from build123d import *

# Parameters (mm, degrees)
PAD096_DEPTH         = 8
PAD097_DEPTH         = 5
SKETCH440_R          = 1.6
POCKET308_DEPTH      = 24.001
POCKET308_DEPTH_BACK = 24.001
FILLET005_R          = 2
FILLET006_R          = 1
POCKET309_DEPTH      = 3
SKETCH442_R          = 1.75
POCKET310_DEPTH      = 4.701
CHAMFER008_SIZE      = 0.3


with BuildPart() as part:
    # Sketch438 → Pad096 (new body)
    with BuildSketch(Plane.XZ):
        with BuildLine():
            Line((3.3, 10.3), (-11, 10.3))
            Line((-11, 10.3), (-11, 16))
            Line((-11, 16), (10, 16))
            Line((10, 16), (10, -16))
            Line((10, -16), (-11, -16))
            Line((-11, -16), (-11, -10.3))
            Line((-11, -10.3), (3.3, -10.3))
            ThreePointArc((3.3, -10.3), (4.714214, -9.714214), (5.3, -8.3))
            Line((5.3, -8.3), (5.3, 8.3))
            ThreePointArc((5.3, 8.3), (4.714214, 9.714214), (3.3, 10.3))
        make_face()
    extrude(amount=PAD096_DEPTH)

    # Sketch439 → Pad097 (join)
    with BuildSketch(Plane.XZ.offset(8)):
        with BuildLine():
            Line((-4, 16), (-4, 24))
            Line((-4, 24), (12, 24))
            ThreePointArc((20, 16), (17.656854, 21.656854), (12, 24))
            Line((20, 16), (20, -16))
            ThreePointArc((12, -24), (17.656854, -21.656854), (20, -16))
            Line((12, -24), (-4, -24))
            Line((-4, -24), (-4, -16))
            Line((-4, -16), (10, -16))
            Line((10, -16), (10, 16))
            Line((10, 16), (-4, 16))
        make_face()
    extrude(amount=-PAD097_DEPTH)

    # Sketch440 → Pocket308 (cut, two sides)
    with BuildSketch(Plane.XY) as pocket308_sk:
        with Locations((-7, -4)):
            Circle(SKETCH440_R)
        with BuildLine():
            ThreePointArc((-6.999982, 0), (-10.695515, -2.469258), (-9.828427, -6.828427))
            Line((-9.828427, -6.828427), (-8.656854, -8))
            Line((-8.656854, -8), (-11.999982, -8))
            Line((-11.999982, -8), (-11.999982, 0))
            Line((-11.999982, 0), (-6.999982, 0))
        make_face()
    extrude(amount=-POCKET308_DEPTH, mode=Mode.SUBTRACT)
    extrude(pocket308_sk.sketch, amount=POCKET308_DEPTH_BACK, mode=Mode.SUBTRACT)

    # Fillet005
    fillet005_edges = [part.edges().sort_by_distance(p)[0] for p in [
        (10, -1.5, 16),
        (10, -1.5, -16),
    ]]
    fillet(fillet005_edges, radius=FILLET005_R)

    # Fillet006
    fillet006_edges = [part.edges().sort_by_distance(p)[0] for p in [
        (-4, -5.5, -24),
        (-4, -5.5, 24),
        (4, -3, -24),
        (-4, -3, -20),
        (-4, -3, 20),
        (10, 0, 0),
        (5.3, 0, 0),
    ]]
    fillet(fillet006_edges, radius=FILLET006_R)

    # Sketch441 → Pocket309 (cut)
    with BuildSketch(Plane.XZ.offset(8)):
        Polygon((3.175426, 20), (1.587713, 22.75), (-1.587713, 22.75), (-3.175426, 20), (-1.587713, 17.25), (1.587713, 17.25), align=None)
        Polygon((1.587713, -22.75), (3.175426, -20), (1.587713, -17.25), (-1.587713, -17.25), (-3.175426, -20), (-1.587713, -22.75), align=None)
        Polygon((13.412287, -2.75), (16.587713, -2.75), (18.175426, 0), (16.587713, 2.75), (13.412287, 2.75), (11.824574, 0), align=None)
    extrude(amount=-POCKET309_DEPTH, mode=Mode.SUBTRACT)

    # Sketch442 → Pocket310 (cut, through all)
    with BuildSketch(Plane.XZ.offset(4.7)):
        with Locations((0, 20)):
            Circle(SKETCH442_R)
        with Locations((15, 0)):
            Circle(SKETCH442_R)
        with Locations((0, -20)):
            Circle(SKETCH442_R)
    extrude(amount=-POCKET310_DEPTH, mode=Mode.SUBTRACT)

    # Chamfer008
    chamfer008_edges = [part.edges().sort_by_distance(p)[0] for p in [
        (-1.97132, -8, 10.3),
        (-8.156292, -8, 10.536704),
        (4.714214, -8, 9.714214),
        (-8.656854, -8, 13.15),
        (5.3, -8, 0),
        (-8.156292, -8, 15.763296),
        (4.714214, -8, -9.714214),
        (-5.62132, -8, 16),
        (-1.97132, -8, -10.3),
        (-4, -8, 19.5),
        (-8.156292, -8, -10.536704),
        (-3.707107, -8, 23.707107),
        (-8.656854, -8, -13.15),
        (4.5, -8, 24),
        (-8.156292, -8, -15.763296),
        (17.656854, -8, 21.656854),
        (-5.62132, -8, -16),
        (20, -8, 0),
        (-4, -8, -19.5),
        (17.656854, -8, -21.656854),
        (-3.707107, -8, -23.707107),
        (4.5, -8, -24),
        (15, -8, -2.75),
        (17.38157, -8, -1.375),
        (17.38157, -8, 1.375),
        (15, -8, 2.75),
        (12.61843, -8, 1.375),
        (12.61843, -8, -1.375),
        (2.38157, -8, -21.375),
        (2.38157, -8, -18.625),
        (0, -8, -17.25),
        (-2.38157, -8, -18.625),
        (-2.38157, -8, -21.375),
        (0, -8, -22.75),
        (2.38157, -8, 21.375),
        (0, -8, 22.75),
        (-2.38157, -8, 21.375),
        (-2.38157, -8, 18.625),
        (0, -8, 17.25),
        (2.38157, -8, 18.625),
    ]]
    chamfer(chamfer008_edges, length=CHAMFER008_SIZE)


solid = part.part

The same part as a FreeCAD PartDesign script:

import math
import FreeCAD as App
import Part
import Sketcher
from FreeCAD import Vector
Q = App.Units.Quantity


def edges_at(feature, points):
    """Names of the edges that pass closest to the given points."""
    edges = feature.Shape.Edges
    near = lambda p: min(range(len(edges)), key=lambda i: edges[i].distToShape(Part.Vertex(*p))[0])
    return sorted({f"Edge{near(p) + 1}" for p in points})


def add_polygon(sketch, points):
    """Adds a closed chain of lines whose ends are joined by coincident constraints."""
    first, n = sketch.GeometryCount, len(points)
    for a, b in zip(points, points[1:] + points[:1]):
        sketch.addGeometry(Part.LineSegment(App.Vector(*a, 0), App.Vector(*b, 0)), False)
    for i in range(n):
        sketch.addConstraint(Sketcher.Constraint("Coincident", first + i, 2, first + (i + 1) % n, 1))

doc = App.newDocument("Part")
body = doc.addObject("PartDesign::Body", "Body")

sketch1 = body.newObject("Sketcher::SketchObject", "Sketch")
sketch1.AttachmentSupport = (doc.getObject("XZ_Plane"), [""])
sketch1.MapMode = "FlatFace"
sketch1.addGeometry([
    Part.LineSegment(Vector(-11, 10.3, 0), Vector(3.3, 10.3, 0)),
    Part.ArcOfCircle(Part.Circle(Vector(3.3, 8.3, 0), Vector(0, 0, 1), 2), math.radians(0), math.radians(90)),
    Part.LineSegment(Vector(5.3, 8.3, 0), Vector(5.3, -8.3, 0)),
    Part.ArcOfCircle(Part.Circle(Vector(3.3, -8.3, 0), Vector(0, 0, 1), 2), math.radians(-90), math.radians(0)),
    Part.LineSegment(Vector(3.3, -10.3, 0), Vector(-11, -10.3, 0)),
    Part.LineSegment(Vector(-11, -10.3, 0), Vector(-11, -16, 0)),
    Part.LineSegment(Vector(-11, -16, 0), Vector(10, -16, 0)),
    Part.LineSegment(Vector(10, -16, 0), Vector(10, 16, 0)),
    Part.LineSegment(Vector(10, 16, 0), Vector(-11, 16, 0)),
    Part.LineSegment(Vector(-11, 16, 0), Vector(-11, 10.3, 0)),
], False)
sketch1.addConstraint([
    Sketcher.Constraint("Tangent", 0, 2, 1, 2),
    Sketcher.Constraint("Tangent", 1, 1, 2, 1),
    Sketcher.Constraint("Tangent", 2, 2, 3, 2),
    Sketcher.Constraint("Tangent", 3, 1, 4, 1),
    Sketcher.Constraint("Coincident", 4, 2, 5, 1),
    Sketcher.Constraint("Coincident", 5, 2, 6, 1),
    Sketcher.Constraint("Coincident", 6, 2, 7, 1),
    Sketcher.Constraint("Coincident", 7, 2, 8, 1),
    Sketcher.Constraint("Coincident", 8, 2, 9, 1),
    Sketcher.Constraint("Coincident", 9, 2, 0, 1),
    Sketcher.Constraint("Horizontal", 0),
    Sketcher.Constraint("Vertical", 2),
    Sketcher.Constraint("Horizontal", 4),
    Sketcher.Constraint("Vertical", 5),
    Sketcher.Constraint("Horizontal", 6),
    Sketcher.Constraint("Vertical", 7),
    Sketcher.Constraint("Horizontal", 8),
    Sketcher.Constraint("Vertical", 9),
    Sketcher.Constraint("Equal", 1, 3),
    Sketcher.Constraint("Symmetric", 5, 2, 8, 2, -1),
    Sketcher.Constraint("Equal", 5, 9),
    Sketcher.Constraint("Radius", 1, Q("1.999999 mm")),
    Sketcher.Constraint("DistanceX", 6, 1, 6, 2, Q("21 mm")),
    Sketcher.Constraint("DistanceY", 7, 1, 7, 2, Q("32 mm")),
    Sketcher.Constraint("DistanceX", 0, 1, 0, 2, Q("14.3 mm")),
    Sketcher.Constraint("DistanceY", 2, 2, 2, 1, Q("16.6 mm")),
    Sketcher.Constraint("DistanceX", 4, 2, -1, 1, Q("11 mm")),
])
pad1 = body.newObject("PartDesign::Pad", "Pad")
pad1.Profile = sketch1
pad1.Length = 8

sketch2 = body.newObject("Sketcher::SketchObject", "Sketch001")
sketch2.AttachmentSupport = (doc.getObject("XZ_Plane"), [""])
sketch2.MapMode = "FlatFace"
sketch2.AttachmentOffset = App.Placement(Vector(0, 0, 8), App.Rotation())
sketch2.addGeometry([
    Part.LineSegment(Vector(-4, 24, 0), Vector(-4, 16, 0)),
    Part.LineSegment(Vector(-4, 16, 0), Vector(10, 16, 0)),
    Part.LineSegment(Vector(10, 16, 0), Vector(10, -16, 0)),
    Part.LineSegment(Vector(10, -16, 0), Vector(-4, -16, 0)),
    Part.LineSegment(Vector(-4, -16, 0), Vector(-4, -24, 0)),
    Part.LineSegment(Vector(-4, -24, 0), Vector(12, -24, 0)),
    Part.ArcOfCircle(Part.Circle(Vector(12, -16, 0), Vector(0, 0, 1), 8), math.radians(-90), math.radians(0)),
    Part.LineSegment(Vector(20, -16, 0), Vector(20, 16, 0)),
    Part.ArcOfCircle(Part.Circle(Vector(12, 16, 0), Vector(0, 0, 1), 8), math.radians(0), math.radians(90)),
    Part.LineSegment(Vector(12, 24, 0), Vector(-4, 24, 0)),
], False)
sketch2.addConstraint([
    Sketcher.Constraint("Coincident", 0, 2, 1, 1),
    Sketcher.Constraint("Coincident", 1, 2, 2, 1),
    Sketcher.Constraint("Coincident", 2, 2, 3, 1),
    Sketcher.Constraint("Coincident", 3, 2, 4, 1),
    Sketcher.Constraint("Coincident", 4, 2, 5, 1),
    Sketcher.Constraint("Tangent", 5, 2, 6, 1),
    Sketcher.Constraint("Tangent", 6, 2, 7, 1),
    Sketcher.Constraint("Tangent", 7, 2, 8, 1),
    Sketcher.Constraint("Tangent", 8, 2, 9, 1),
    Sketcher.Constraint("Coincident", 9, 2, 0, 1),
    Sketcher.Constraint("Vertical", 0),
    Sketcher.Constraint("Horizontal", 1),
    Sketcher.Constraint("Vertical", 2),
    Sketcher.Constraint("Horizontal", 3),
    Sketcher.Constraint("Vertical", 4),
    Sketcher.Constraint("Horizontal", 5),
    Sketcher.Constraint("Vertical", 7),
    Sketcher.Constraint("Horizontal", 9),
    Sketcher.Constraint("Equal", 6, 8),
    Sketcher.Constraint("Symmetric", 0, 2, 3, 2, -1),
    Sketcher.Constraint("Horizontal", 8, 3, 0, 2),
    Sketcher.Constraint("Horizontal", 6, 3, 2, 2),
    Sketcher.Constraint("Radius", 6, Q("8.000001 mm")),
    Sketcher.Constraint("DistanceX", 1, 1, 1, 2, Q("14 mm")),
    Sketcher.Constraint("DistanceX", 5, 1, 5, 2, Q("16 mm")),
    Sketcher.Constraint("DistanceY", 2, 2, 2, 1, Q("32 mm")),
    Sketcher.Constraint("DistanceX", -1, 1, 6, 3, Q("11.999999 mm")),
])
pad2 = body.newObject("PartDesign::Pad", "Pad001")
pad2.Profile = sketch2
pad2.Length = 5
pad2.Reversed = True

sketch3 = body.newObject("Sketcher::SketchObject", "Sketch002")
sketch3.AttachmentSupport = (doc.getObject("XY_Plane"), [""])
sketch3.MapMode = "FlatFace"
sketch3.addGeometry([
    Part.Circle(Vector(-7, -4, 0), Vector(0, 0, 1), 1.6),
    Part.ArcOfCircle(Part.Circle(Vector(-7, -4, 0), Vector(0, 0, 1), 4), math.radians(90), math.radians(225)),
    Part.LineSegment(Vector(-7, 0, 0), Vector(-12, 0, 0)),
    Part.LineSegment(Vector(-12, 0, 0), Vector(-12, -8, 0)),
    Part.LineSegment(Vector(-12, -8, 0), Vector(-8.7, -8, 0)),
    Part.LineSegment(Vector(-8.7, -8, 0), Vector(-9.8, -6.8, 0)),
], False)
sketch3.addConstraint([
    Sketcher.Constraint("Coincident", 1, 1, 2, 1),
    Sketcher.Constraint("Coincident", 2, 2, 3, 1),
    Sketcher.Constraint("Coincident", 3, 2, 4, 1),
    Sketcher.Constraint("Coincident", 4, 2, 5, 1),
    Sketcher.Constraint("Tangent", 5, 2, 1, 2),
    Sketcher.Constraint("Horizontal", 2),
    Sketcher.Constraint("Vertical", 3),
    Sketcher.Constraint("Horizontal", 4),
    Sketcher.Constraint("Coincident", 1, 3, 0, 3),
    Sketcher.Constraint("PointOnObject", 1, 1, -1),
    Sketcher.Constraint("Radius", 1, Q("4 mm")),
    Sketcher.Constraint("Diameter", 0, Q("3.2 mm")),
    Sketcher.Constraint("DistanceX", 2, 2, 2, 1, Q("5 mm")),
    Sketcher.Constraint("DistanceY", 3, 2, 3, 1, Q("8 mm")),
    Sketcher.Constraint("Angle", 5, Q("135 deg")),
    Sketcher.Constraint("DistanceX", 0, 3, -1, 1, Q("7 mm")),
    Sketcher.Constraint("DistanceX", 4, 1, 4, 2, Q("3.343128 mm")),
])
pocket1 = body.newObject("PartDesign::Pocket", "Pocket")
pocket1.Profile = sketch3
pocket1.Type = "ThroughAll"
pocket1.Midplane = True
doc.recompute()

fillet = body.newObject("PartDesign::Fillet", "Fillet")
fillet.Base = (pocket1, edges_at(pocket1, [(10, -1.5, 16), (10, -1.5, -16)]))
fillet.Radius = 2
doc.recompute()

fillet2 = body.newObject("PartDesign::Fillet", "Fillet001")
fillet2.Base = (fillet, edges_at(fillet, [
    (-4, -5.5, -24),
    (-4, -5.5, 24),
    (4, -3, -24),
    (-4, -3, -20),
    (-4, -3, 20),
    (10, 0, 0),
    (5.3, 0, 0),
]))
fillet2.Radius = 1

sketch4 = body.newObject("Sketcher::SketchObject", "Sketch003")
sketch4.AttachmentSupport = (doc.getObject("XZ_Plane"), [""])
sketch4.MapMode = "FlatFace"
sketch4.AttachmentOffset = App.Placement(Vector(0, 0, 8), App.Rotation())
add_polygon(sketch4, [(3.2, 20), (1.6, 22.8), (-1.6, 22.8), (-3.2, 20), (-1.6, 17.2), (1.6, 17.2)])
add_polygon(sketch4, [(1.6, -22.8), (3.2, -20), (1.6, -17.2), (-1.6, -17.2), (-3.2, -20), (-1.6, -22.8)])
add_polygon(sketch4, [(13.4, -2.8), (16.6, -2.8), (18.2, 0), (16.6, 2.8), (13.4, 2.8), (11.8, 0)])
sketch4.addConstraint([
    Sketcher.Constraint("Horizontal", 1),
    Sketcher.Constraint("Horizontal", 4),
    Sketcher.Constraint("Horizontal", 8),
    Sketcher.Constraint("Horizontal", 11),
    Sketcher.Constraint("Horizontal", 12),
    Sketcher.Constraint("Horizontal", 15),
    Sketcher.Constraint("Symmetric", 2, 2, 6, 2, -1, 1),
    Sketcher.Constraint("Symmetric", 3, 2, 7, 2, -1, 1),
    Sketcher.Constraint("Symmetric", 5, 2, 9, 2, -1, 1),
    Sketcher.Constraint("Symmetric", 0, 2, 10, 2, -1, 1),
    Sketcher.Constraint("Symmetric", 2, 2, 5, 2, -2),
    Sketcher.Constraint("Symmetric", 12, 2, 14, 2, -1),
    Sketcher.Constraint("PointOnObject", 13, 2, -1),
    Sketcher.Constraint("PointOnObject", 16, 2, -1),
    Sketcher.Constraint("Parallel", 0, 3),
    Sketcher.Constraint("Parallel", 2, 5),
    Sketcher.Constraint("Parallel", 5, 6),
    Sketcher.Constraint("Parallel", 6, 9),
    Sketcher.Constraint("Parallel", 9, 13),
    Sketcher.Constraint("Parallel", 10, 14),
    Sketcher.Constraint("Parallel", 13, 16),
    Sketcher.Constraint("Parallel", 14, 17),
    Sketcher.Constraint("Vertical", 1, 2, 3, 2),
    Sketcher.Constraint("Equal", 11, 12),
    Sketcher.Constraint("Equal", 10, 13),
    Sketcher.Constraint("Angle", 0, Q("119.999996 deg")),
    Sketcher.Constraint("DistanceY", -1, 1, 2, 2, Q("20 mm")),
    Sketcher.Constraint("DistanceX", 7, 2, 12, 2, Q("15 mm")),
    Sketcher.Constraint("DistanceY", 3, 2, 1, 2, Q("5.5 mm")),
    Sketcher.Constraint("DistanceX", 1, 2, 1, 1, Q("3.175426 mm")),
])
pocket2 = body.newObject("PartDesign::Pocket", "Pocket001")
pocket2.Profile = sketch4
pocket2.Length = 3

sketch5 = body.newObject("Sketcher::SketchObject", "Sketch004")
sketch5.AttachmentSupport = (doc.getObject("XZ_Plane"), [""])
sketch5.MapMode = "FlatFace"
sketch5.AttachmentOffset = App.Placement(Vector(0, 0, 4.7), App.Rotation())
sketch5.addGeometry([
    Part.Circle(Vector(0, 20, 0), Vector(0, 0, 1), 1.8),
    Part.Circle(Vector(15, 0, 0), Vector(0, 0, 1), 1.8),
    Part.Circle(Vector(0, -20, 0), Vector(0, 0, 1), 1.8),
], False)
sketch5.addConstraint([
    Sketcher.Constraint("Equal", 0, 1),
    Sketcher.Constraint("Equal", 1, 2),
    Sketcher.Constraint("Symmetric", 0, 3, 2, 3, -1, 1),
    Sketcher.Constraint("PointOnObject", 0, 3, -2),
    Sketcher.Constraint("PointOnObject", 1, 3, -1),
    Sketcher.Constraint("Diameter", 0, Q("3.5 mm")),
    Sketcher.Constraint("DistanceY", -1, 1, 0, 3, Q("20 mm")),
    Sketcher.Constraint("DistanceX", -1, 1, 1, 3, Q("15 mm")),
])
pocket3 = body.newObject("PartDesign::Pocket", "Pocket002")
pocket3.Profile = sketch5
pocket3.Type = "ThroughAll"
doc.recompute()

chamfer = body.newObject("PartDesign::Chamfer", "Chamfer")
chamfer.Base = (pocket3, edges_at(pocket3, [
    (-1.971, -8, 10.3),
    (-8.156, -8, 10.537),
    (4.714, -8, 9.714),
    (-8.657, -8, 13.15),
    (5.3, -8, 0),
    (-8.156, -8, 15.763),
    (4.714, -8, -9.714),
    (-5.621, -8, 16),
    (-1.971, -8, -10.3),
    (-4, -8, 19.5),
    (-8.156, -8, -10.537),
    (-3.707, -8, 23.707),
    (-8.657, -8, -13.15),
    (4.5, -8, 24),
    (-8.156, -8, -15.763),
    (17.657, -8, 21.657),
    (-5.621, -8, -16),
    (20, -8, 0),
    (-4, -8, -19.5),
    (17.657, -8, -21.657),
    (-3.707, -8, -23.707),
    (4.5, -8, -24),
    (15, -8, -2.75),
    (17.382, -8, -1.375),
    (17.382, -8, 1.375),
    (15, -8, 2.75),
    (12.618, -8, 1.375),
    (12.618, -8, -1.375),
    (2.382, -8, -21.375),
    (2.382, -8, -18.625),
    (0, -8, -17.25),
    (-2.382, -8, -18.625),
    (-2.382, -8, -21.375),
    (0, -8, -22.75),
    (2.382, -8, 21.375),
    (0, -8, 22.75),
    (-2.382, -8, 21.375),
    (-2.382, -8, 18.625),
    (0, -8, 17.25),
    (2.382, -8, 18.625),
]))
chamfer.Size = 0.3

doc.recompute()
